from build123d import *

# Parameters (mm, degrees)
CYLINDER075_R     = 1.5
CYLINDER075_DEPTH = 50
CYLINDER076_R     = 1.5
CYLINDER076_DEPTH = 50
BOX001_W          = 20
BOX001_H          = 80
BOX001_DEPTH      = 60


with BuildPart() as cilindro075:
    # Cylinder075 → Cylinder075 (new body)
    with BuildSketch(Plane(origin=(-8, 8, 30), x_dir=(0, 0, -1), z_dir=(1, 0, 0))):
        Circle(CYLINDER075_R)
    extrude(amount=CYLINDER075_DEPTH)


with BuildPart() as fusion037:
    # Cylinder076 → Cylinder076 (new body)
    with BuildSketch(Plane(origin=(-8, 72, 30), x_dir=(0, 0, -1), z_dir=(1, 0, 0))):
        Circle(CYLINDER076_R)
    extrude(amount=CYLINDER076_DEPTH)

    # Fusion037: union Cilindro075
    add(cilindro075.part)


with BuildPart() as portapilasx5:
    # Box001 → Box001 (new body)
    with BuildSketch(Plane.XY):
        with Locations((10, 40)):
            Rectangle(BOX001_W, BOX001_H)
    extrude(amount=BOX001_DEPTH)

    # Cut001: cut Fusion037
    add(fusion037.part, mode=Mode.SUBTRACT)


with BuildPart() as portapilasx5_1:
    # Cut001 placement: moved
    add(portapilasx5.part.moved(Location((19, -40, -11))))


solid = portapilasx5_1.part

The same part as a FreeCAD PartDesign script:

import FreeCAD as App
import Part
import Sketcher


def add_polygon(sketch, points):
    """Adds a closed chain of lines whose ends are joined by coincident constraints."""
    first, n = sketch.GeometryCount, len(points)
    for a, b in zip(points, points[1:] + points[:1]):
        sketch.addGeometry(Part.LineSegment(App.Vector(*a, 0), App.Vector(*b, 0)), False)
    for i in range(n):
        sketch.addConstraint(Sketcher.Constraint("Coincident", first + i, 2, first + (i + 1) % n, 1))

doc = App.newDocument("Part")
body = doc.addObject("PartDesign::Body", "Body")

# Sketch on YZ plane
sketch1 = body.newObject("Sketcher::SketchObject", "Sketch")
sketch1.AttachmentSupport = (doc.getObject("YZ_Plane"), [""])
sketch1.MapMode = "FlatFace"
sketch1.AttachmentOffset = App.Placement(App.Vector(0, 0, -8), App.Rotation())
sketch1.addGeometry(Part.Circle(App.Vector(8, 30, 0), App.Vector(0, 0, 1), 1.5), False)
sketch1.addConstraint(Sketcher.Constraint("Diameter", 0, 3.0))
sketch1.addConstraint(Sketcher.Constraint("DistanceX", -1, 1, 0, 3, 8.0))
sketch1.addConstraint(Sketcher.Constraint("DistanceY", -1, 1, 0, 3, 30.0))
pad1 = body.newObject("PartDesign::Pad", "Pad")
pad1.Profile = sketch1
pad1.Length = 50
body2 = doc.addObject("PartDesign::Body", "Body001")
body2.AllowCompound = True

# Sketch on YZ plane
sketch2 = body2.newObject("Sketcher::SketchObject", "Sketch001")
sketch2.AttachmentSupport = (doc.getObject("YZ_Plane001"), [""])
sketch2.MapMode = "FlatFace"
sketch2.AttachmentOffset = App.Placement(App.Vector(0, 0, -8), App.Rotation())
sketch2.addGeometry(Part.Circle(App.Vector(72, 30, 0), App.Vector(0, 0, 1), 1.5), False)
sketch2.addConstraint(Sketcher.Constraint("Diameter", 0, 3.0))
sketch2.addConstraint(Sketcher.Constraint("DistanceX", -1, 1, 0, 3, 72.0))
sketch2.addConstraint(Sketcher.Constraint("DistanceY", -1, 1, 0, 3, 30.0))
pad2 = body2.newObject("PartDesign::Pad", "Pad001")
pad2.Profile = sketch2
pad2.Length = 50
doc.recompute()

boolean = body2.newObject("PartDesign::Boolean", "Boolean")
boolean.Type = "Fuse"
boolean.addObjects([body])
body3 = doc.addObject("PartDesign::Body", "Body002")

# Sketch on XY plane
sketch3 = body3.newObject("Sketcher::SketchObject", "Sketch002")
sketch3.AttachmentSupport = (doc.getObject("XY_Plane002"), [""])
sketch3.MapMode = "FlatFace"
add_polygon(sketch3, [(0, 80), (0, 0), (20, 0), (20, 80)])  # lines 0-3
sketch3.addConstraint(Sketcher.Constraint("Vertical", 0))
sketch3.addConstraint(Sketcher.Constraint("Horizontal", 1))
sketch3.addConstraint(Sketcher.Constraint("Vertical", 2))
sketch3.addConstraint(Sketcher.Constraint("Horizontal", 3))
sketch3.addConstraint(Sketcher.Constraint("Coincident", 0, 2, -1, 1))
sketch3.addConstraint(Sketcher.Constraint("DistanceX", 1, 1, 1, 2, 20.0))
sketch3.addConstraint(Sketcher.Constraint("DistanceY", 0, 2, 0, 1, 80.0))
pad3 = body3.newObject("PartDesign::Pad", "Pad002")
pad3.Profile = sketch3
pad3.Length = 60
doc.recompute()

boolean2 = body3.newObject("PartDesign::Boolean", "Boolean001")
boolean2.Type = "Cut"
boolean2.addObjects([body2])
body4 = doc.addObject("PartDesign::Body", "Body003")
doc.recompute()

body3.Placement = App.Placement(App.Vector(19, -40, -11), App.Rotation(App.Vector(0, 0, 1), 0))
boolean3 = body4.newObject("PartDesign::Boolean", "Boolean002")
boolean3.Type = "Fuse"
boolean3.addObjects([body3])

doc.recompute()
